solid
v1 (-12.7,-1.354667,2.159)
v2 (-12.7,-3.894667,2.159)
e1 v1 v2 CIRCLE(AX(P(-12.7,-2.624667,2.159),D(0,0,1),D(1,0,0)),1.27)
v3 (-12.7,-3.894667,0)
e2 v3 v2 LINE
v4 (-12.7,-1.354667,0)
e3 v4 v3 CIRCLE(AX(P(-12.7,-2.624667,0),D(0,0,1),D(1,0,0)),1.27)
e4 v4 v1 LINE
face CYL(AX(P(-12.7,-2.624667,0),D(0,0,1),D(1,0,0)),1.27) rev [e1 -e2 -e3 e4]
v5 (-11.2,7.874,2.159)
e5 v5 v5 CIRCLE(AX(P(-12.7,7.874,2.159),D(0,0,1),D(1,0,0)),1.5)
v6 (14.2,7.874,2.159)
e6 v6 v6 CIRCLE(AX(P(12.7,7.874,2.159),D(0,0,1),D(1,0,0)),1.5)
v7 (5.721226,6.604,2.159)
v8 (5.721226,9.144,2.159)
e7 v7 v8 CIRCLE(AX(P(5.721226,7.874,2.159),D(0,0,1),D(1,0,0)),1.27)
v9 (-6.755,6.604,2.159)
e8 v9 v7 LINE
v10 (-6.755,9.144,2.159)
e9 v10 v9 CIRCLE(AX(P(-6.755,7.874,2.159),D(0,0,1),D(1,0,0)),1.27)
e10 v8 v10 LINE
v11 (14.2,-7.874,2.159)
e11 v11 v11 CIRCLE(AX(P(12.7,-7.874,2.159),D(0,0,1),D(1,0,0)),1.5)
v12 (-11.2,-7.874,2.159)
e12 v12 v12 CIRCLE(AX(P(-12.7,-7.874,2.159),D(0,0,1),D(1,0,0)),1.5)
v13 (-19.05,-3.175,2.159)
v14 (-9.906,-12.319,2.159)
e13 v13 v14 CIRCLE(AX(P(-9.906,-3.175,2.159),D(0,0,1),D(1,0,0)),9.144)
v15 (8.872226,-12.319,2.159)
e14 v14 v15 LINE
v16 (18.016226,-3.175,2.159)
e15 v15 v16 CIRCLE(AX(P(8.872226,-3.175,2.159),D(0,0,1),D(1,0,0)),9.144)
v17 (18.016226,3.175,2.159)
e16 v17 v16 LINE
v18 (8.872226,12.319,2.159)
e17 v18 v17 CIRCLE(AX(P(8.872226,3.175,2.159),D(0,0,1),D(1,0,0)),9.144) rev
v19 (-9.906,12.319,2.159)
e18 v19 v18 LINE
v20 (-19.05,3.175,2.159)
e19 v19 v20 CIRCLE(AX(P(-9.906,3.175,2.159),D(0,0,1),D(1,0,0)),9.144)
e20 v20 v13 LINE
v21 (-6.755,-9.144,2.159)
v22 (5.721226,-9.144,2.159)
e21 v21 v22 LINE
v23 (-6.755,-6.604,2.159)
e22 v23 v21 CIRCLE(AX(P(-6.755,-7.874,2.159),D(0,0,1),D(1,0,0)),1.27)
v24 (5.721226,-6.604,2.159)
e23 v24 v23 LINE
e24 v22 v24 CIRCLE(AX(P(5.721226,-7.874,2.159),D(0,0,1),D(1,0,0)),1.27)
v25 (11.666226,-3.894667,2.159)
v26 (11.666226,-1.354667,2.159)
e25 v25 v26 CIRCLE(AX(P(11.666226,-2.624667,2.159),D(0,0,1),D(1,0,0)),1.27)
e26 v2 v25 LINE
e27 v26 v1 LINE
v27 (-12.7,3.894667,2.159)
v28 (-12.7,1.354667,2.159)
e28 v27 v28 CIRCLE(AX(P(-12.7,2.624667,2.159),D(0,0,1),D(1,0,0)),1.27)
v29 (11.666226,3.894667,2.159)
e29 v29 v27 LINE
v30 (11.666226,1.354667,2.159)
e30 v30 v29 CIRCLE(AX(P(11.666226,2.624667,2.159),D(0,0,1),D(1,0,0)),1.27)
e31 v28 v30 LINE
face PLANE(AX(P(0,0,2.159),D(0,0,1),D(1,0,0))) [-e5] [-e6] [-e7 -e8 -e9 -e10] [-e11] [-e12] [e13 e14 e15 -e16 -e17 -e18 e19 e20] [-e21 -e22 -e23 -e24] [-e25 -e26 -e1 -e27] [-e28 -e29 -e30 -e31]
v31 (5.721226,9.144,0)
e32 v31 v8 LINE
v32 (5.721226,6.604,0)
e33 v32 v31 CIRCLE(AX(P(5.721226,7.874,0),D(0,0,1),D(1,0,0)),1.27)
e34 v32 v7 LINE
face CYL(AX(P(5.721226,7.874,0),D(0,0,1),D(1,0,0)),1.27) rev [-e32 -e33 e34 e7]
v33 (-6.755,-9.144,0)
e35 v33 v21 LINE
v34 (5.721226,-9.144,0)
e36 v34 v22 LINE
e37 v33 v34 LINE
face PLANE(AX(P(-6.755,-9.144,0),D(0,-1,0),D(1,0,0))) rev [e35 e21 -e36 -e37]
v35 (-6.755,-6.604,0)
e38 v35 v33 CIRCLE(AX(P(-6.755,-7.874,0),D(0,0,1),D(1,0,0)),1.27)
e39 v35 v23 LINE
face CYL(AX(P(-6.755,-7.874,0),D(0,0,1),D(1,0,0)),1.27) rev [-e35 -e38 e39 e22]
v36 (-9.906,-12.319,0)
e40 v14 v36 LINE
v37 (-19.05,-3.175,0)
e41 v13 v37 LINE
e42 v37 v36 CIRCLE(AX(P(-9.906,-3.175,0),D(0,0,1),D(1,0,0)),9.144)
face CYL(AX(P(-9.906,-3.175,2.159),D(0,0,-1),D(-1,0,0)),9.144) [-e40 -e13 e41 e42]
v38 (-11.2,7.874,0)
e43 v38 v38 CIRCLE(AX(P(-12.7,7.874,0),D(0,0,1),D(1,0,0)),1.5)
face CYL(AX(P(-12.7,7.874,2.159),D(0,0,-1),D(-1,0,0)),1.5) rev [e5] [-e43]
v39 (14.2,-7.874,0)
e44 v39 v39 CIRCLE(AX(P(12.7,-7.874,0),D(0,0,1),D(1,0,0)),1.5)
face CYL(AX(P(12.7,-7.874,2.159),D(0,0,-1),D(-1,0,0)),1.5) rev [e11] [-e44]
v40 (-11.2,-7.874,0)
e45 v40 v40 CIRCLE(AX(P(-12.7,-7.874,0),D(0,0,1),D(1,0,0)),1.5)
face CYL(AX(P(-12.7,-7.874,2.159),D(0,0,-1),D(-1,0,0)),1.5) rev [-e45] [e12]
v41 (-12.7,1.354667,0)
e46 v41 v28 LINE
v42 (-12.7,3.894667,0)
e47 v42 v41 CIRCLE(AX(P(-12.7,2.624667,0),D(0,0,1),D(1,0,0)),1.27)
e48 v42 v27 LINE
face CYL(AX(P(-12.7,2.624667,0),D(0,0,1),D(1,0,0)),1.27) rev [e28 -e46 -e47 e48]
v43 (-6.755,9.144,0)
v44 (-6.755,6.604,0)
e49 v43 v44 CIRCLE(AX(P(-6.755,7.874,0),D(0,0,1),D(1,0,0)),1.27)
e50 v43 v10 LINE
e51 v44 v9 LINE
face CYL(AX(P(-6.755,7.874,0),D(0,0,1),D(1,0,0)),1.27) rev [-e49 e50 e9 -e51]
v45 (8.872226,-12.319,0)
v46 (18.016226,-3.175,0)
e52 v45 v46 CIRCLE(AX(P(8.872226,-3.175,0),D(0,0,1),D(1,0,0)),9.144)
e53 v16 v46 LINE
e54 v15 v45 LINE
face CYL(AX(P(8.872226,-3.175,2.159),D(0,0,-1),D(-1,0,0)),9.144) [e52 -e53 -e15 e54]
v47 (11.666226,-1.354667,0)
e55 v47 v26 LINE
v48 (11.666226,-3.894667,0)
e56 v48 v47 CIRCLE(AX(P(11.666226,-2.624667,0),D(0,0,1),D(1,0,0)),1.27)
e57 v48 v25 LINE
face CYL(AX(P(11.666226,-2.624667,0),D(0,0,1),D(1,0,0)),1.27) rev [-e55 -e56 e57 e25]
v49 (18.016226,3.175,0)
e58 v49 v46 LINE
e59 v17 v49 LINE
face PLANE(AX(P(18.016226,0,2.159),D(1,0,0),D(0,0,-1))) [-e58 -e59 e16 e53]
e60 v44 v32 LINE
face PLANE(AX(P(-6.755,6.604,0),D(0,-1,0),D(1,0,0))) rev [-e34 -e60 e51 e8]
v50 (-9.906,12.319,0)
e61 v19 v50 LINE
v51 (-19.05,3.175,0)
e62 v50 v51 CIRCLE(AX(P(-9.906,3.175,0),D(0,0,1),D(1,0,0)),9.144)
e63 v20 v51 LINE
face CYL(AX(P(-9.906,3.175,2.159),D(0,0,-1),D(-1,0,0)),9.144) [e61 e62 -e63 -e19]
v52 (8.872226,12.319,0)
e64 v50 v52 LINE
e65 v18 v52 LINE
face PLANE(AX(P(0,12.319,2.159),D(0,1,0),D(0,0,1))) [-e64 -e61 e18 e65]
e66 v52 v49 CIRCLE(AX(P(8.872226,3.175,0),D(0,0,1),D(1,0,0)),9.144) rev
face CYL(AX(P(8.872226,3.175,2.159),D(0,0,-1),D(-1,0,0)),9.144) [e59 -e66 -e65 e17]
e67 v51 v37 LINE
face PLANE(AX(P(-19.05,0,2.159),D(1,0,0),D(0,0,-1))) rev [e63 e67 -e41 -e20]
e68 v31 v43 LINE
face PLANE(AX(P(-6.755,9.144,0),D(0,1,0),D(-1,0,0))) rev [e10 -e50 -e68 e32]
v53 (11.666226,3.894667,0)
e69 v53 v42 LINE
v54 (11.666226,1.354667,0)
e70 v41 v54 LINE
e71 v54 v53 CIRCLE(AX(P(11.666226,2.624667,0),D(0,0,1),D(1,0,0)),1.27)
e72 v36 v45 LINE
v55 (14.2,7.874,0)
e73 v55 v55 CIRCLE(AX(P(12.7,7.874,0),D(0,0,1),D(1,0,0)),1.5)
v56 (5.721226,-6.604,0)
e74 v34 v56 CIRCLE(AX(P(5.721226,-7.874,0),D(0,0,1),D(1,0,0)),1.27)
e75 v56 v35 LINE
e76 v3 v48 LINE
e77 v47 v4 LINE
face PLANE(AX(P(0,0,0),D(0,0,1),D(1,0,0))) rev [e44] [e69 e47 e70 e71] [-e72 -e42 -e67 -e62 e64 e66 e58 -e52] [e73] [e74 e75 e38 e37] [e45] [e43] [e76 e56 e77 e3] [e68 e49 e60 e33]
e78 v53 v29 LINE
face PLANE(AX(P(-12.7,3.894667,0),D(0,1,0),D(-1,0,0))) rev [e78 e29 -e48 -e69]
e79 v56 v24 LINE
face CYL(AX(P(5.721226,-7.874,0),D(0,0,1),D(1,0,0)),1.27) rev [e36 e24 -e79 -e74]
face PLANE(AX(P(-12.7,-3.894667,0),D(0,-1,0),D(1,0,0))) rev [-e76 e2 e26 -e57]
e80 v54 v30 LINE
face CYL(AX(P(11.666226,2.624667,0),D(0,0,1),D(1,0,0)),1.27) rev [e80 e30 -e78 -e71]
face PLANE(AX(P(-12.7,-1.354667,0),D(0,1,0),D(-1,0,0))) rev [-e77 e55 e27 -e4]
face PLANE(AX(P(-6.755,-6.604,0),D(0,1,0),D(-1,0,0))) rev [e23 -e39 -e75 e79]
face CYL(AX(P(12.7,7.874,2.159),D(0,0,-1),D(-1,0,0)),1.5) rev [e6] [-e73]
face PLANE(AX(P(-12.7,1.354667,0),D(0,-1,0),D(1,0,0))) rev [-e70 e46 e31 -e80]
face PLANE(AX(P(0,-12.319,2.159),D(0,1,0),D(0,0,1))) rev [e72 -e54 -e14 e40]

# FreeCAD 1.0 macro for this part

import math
import FreeCAD as App
import Part
import Sketcher
from FreeCAD import Vector
Q = App.Units.Quantity

doc = App.newDocument("Part")
params = doc.addObject("Spreadsheet::Sheet", "Params")
for row, (alias, value) in enumerate([
    ("sketch1_radius", "0.36 in"),
    ("sketch1_height", "0.25 in"),
    ("pad1_length", "0.085 in"),
    ("sketch2_radius", "0.05 in"),
], start=1):
    params.set(f"A{row}", alias)
    params.set(f"B{row}", "=" + value)
    params.setAlias(f"B{row}", alias)

body = doc.addObject("PartDesign::Body", "Body")

# Sketch on XY plane
sketch1 = body.newObject("Sketcher::SketchObject", "Sketch")
sketch1.AttachmentSupport = (doc.getObject("XY_Plane"), [""])
sketch1.MapMode = "FlatFace"
sketch1.addGeometry([
    Part.LineSegment(Vector(8.872226, 12.319, 0), Vector(-9.906, 12.319, 0)),  # 0
    Part.ArcOfCircle(Part.Circle(Vector(-9.906, 3.175, 0), Vector(0, 0, 1), 9.144), math.radians(90), math.radians(180)),  # 1
    Part.LineSegment(Vector(-19.05, 3.175, 0), Vector(-19.05, -3.175, 0)),  # 2
    Part.ArcOfCircle(Part.Circle(Vector(-9.906, -3.175, 0), Vector(0, 0, 1), 9.144), math.radians(-180), math.radians(-90)),  # 3
    Part.LineSegment(Vector(-9.906, -12.319, 0), Vector(8.872226, -12.319, 0)),  # 4
    Part.ArcOfCircle(Part.Circle(Vector(8.872226, -3.175, 0), Vector(0, 0, 1), 9.144), math.radians(-90), math.radians(0)),  # 5
    Part.LineSegment(Vector(18.016226, -3.175, 0), Vector(18.016226, 3.175, 0)),  # 6
    Part.ArcOfCircle(Part.Circle(Vector(8.872226, 3.175, 0), Vector(0, 0, 1), 9.144), math.radians(0), math.radians(90)),  # 7
    Part.Circle(Vector(12.7, -7.874, 0), Vector(0, 0, 1), 1.5),  # 8
    Part.Circle(Vector(-12.7, -7.874, 0), Vector(0, 0, 1), 1.5),  # 9
    Part.Circle(Vector(12.7, 7.874, 0), Vector(0, 0, 1), 1.5),  # 10
    Part.Circle(Vector(-12.7, 7.874, 0), Vector(0, 0, 1), 1.5),  # 11
], False)
sketch1.addConstraint([
    Sketcher.Constraint("Tangent", 0, 2, 1, 1),
    Sketcher.Constraint("Tangent", 1, 2, 2, 1),
    Sketcher.Constraint("Tangent", 2, 2, 3, 1),
    Sketcher.Constraint("Tangent", 3, 2, 4, 1),
    Sketcher.Constraint("Tangent", 4, 2, 5, 1),
    Sketcher.Constraint("Tangent", 5, 2, 6, 1),
    Sketcher.Constraint("Tangent", 6, 2, 7, 1),
    Sketcher.Constraint("Tangent", 7, 2, 0, 1),
    Sketcher.Constraint("Horizontal", 0),
    Sketcher.Constraint("Vertical", 2),
    Sketcher.Constraint("Horizontal", 4),
    Sketcher.Constraint("Vertical", 6),
    Sketcher.Constraint("Equal", 1, 3),
    Sketcher.Constraint("Equal", 3, 5),
    Sketcher.Constraint("Equal", 5, 7),
    Sketcher.Constraint("Equal", 8, 9),
    Sketcher.Constraint("Equal", 9, 10),
    Sketcher.Constraint("Equal", 10, 11),
    Sketcher.Constraint("Symmetric", 9, 3, 10, 3, -1, 1),
    Sketcher.Constraint("Symmetric", 8, 3, 11, 3, -1, 1),
    Sketcher.Constraint("Symmetric", 8, 3, 9, 3, -2),
    Sketcher.Constraint("Radius", 1, Q("0.36 in")),
    Sketcher.Constraint("DistanceX", 9, 3, 8, 3, Q("1 in")),
    Sketcher.Constraint("DistanceY", 2, 2, 2, 1, Q("0.25 in")),
    Sketcher.Constraint("Diameter", 8, 3.0),
    Sketcher.Constraint("DistanceX", 1, 3, -1, 1, Q("0.39 in")),
    Sketcher.Constraint("DistanceY", 8, 3, -1, 1, Q("0.31 in")),
    Sketcher.Constraint("DistanceY", -1, 1, 1, 3, Q("0.125 in")),
    Sketcher.Constraint("DistanceX", 0, 2, 0, 1, 18.778226),
])
sketch1.setExpression("Constraints[21]", "Params.sketch1_radius")
sketch1.setExpression("Constraints[23]", "Params.sketch1_height")
pad1 = body.newObject("PartDesign::Pad", "Pad")
pad1.Profile = sketch1
pad1.setExpression("Length", "Params.pad1_length")

# Sketch on XY plane
sketch2 = body.newObject("Sketcher::SketchObject", "Sketch001")
sketch2.AttachmentSupport = (doc.getObject("XY_Plane"), [""])
sketch2.MapMode = "FlatFace"
sketch2.AttachmentOffset = App.Placement(Vector(0, 0, 0.085 * 25.4), App.Rotation())
sketch2.addGeometry([
    Part.LineSegment(Vector(5.721226, 9.144, 0), Vector(-6.755, 9.144, 0)),  # 0
    Part.ArcOfCircle(Part.Circle(Vector(-6.755, 7.874, 0), Vector(0, 0, 1), 1.27), math.radians(90), math.radians(270)),  # 1
    Part.LineSegment(Vector(-6.755, 6.604, 0), Vector(5.721226, 6.604, 0)),  # 2
    Part.ArcOfCircle(Part.Circle(Vector(5.721226, 7.874, 0), Vector(0, 0, 1), 1.27), math.radians(-90), math.radians(90)),  # 3
    Part.LineSegment(Vector(11.666226, 3.894667, 0), Vector(-12.7, 3.894667, 0)),  # 4
    Part.ArcOfCircle(Part.Circle(Vector(-12.7, 2.624667, 0), Vector(0, 0, 1), 1.27), math.radians(90), math.radians(270)),  # 5
    Part.LineSegment(Vector(-12.7, 1.354667, 0), Vector(11.666226, 1.354667, 0)),  # 6
    Part.ArcOfCircle(Part.Circle(Vector(11.666226, 2.624667, 0), Vector(0, 0, 1), 1.27), math.radians(-90), math.radians(90)),  # 7
    Part.LineSegment(Vector(11.666226, -1.354667, 0), Vector(-12.7, -1.354667, 0)),  # 8
    Part.ArcOfCircle(Part.Circle(Vector(-12.7, -2.624667, 0), Vector(0, 0, 1), 1.27), math.radians(90), math.radians(270)),  # 9
    Part.LineSegment(Vector(-12.7, -3.894667, 0), Vector(11.666226, -3.894667, 0)),  # 10
    Part.ArcOfCircle(Part.Circle(Vector(11.666226, -2.624667, 0), Vector(0, 0, 1), 1.27), math.radians(-90), math.radians(90)),  # 11
    Part.LineSegment(Vector(5.721226, -6.604, 0), Vector(-6.755, -6.604, 0)),  # 12
    Part.ArcOfCircle(Part.Circle(Vector(-6.755, -7.874, 0), Vector(0, 0, 1), 1.27), math.radians(90), math.radians(270)),  # 13
    Part.LineSegment(Vector(-6.755, -9.144, 0), Vector(5.721226, -9.144, 0)),  # 14
    Part.ArcOfCircle(Part.Circle(Vector(5.721226, -7.874, 0), Vector(0, 0, 1), 1.27), math.radians(-90), math.radians(90)),  # 15
], False)
sketch2.addConstraint([
    Sketcher.Constraint("Tangent", 0, 2, 1, 1),
    Sketcher.Constraint("Tangent", 1, 2, 2, 1),
    Sketcher.Constraint("Tangent", 2, 2, 3, 1),
    Sketcher.Constraint("Tangent", 3, 2, 0, 1),
    Sketcher.Constraint("Tangent", 4, 2, 5, 1),
    Sketcher.Constraint("Tangent", 5, 2, 6, 1),
    Sketcher.Constraint("Tangent", 6, 2, 7, 1),
    Sketcher.Constraint("Tangent", 7, 2, 4, 1),
    Sketcher.Constraint("Tangent", 8, 2, 9, 1),
    Sketcher.Constraint("Tangent", 9, 2, 10, 1),
    Sketcher.Constraint("Tangent", 10, 2, 11, 1),
    Sketcher.Constraint("Tangent", 11, 2, 8, 1),
    Sketcher.Constraint("Tangent", 12, 2, 13, 1),
    Sketcher.Constraint("Tangent", 13, 2, 14, 1),
    Sketcher.Constraint("Tangent", 14, 2, 15, 1),
    Sketcher.Constraint("Tangent", 15, 2, 12, 1),
    Sketcher.Constraint("Horizontal", 0),
    Sketcher.Constraint("Horizontal", 2),
    Sketcher.Constraint("Horizontal", 4),
    Sketcher.Constraint("Horizontal", 6),
    Sketcher.Constraint("Horizontal", 8),
    Sketcher.Constraint("Horizontal", 10),
    Sketcher.Constraint("Horizontal", 12),
    Sketcher.Constraint("Horizontal", 14),
    Sketcher.Constraint("Equal", 3, 5),
    Sketcher.Constraint("Equal", 7, 9),
    Sketcher.Constraint("Equal", 11, 13),
    Sketcher.Constraint("Symmetric", 5, 3, 9, 3, -1),
    Sketcher.Constraint("Symmetric", 1, 3, 13, 3, -1),
    Sketcher.Constraint("Vertical", 7, 3, 11, 3),
    Sketcher.Constraint("Vertical", 3, 3, 15, 3),
    Sketcher.Constraint("Radius", 1, Q("0.05 in")),
    Sketcher.Constraint("DistanceX", 5, 3, -1, 1, Q("0.5 in")),
    Sketcher.Constraint("DistanceY", -1, 1, 1, 3, Q("0.31 in")),
    Sketcher.Constraint("DistanceX", 1, 3, -1, 1, 6.755),
    Sketcher.Constraint("DistanceX", 3, 3, 7, 3, 5.945),
    Sketcher.Constraint("DistanceX", 0, 2, 0, 1, 12.476226),
    Sketcher.Constraint("DistanceY", -1, 1, 5, 3, 2.624667),
])
sketch2.setExpression("Constraints[31]", "Params.sketch2_radius")
pocket1 = body.newObject("PartDesign::Pocket", "Pocket")
pocket1.Profile = sketch2
pocket1.Type = "ThroughAll"

doc.recompute()
